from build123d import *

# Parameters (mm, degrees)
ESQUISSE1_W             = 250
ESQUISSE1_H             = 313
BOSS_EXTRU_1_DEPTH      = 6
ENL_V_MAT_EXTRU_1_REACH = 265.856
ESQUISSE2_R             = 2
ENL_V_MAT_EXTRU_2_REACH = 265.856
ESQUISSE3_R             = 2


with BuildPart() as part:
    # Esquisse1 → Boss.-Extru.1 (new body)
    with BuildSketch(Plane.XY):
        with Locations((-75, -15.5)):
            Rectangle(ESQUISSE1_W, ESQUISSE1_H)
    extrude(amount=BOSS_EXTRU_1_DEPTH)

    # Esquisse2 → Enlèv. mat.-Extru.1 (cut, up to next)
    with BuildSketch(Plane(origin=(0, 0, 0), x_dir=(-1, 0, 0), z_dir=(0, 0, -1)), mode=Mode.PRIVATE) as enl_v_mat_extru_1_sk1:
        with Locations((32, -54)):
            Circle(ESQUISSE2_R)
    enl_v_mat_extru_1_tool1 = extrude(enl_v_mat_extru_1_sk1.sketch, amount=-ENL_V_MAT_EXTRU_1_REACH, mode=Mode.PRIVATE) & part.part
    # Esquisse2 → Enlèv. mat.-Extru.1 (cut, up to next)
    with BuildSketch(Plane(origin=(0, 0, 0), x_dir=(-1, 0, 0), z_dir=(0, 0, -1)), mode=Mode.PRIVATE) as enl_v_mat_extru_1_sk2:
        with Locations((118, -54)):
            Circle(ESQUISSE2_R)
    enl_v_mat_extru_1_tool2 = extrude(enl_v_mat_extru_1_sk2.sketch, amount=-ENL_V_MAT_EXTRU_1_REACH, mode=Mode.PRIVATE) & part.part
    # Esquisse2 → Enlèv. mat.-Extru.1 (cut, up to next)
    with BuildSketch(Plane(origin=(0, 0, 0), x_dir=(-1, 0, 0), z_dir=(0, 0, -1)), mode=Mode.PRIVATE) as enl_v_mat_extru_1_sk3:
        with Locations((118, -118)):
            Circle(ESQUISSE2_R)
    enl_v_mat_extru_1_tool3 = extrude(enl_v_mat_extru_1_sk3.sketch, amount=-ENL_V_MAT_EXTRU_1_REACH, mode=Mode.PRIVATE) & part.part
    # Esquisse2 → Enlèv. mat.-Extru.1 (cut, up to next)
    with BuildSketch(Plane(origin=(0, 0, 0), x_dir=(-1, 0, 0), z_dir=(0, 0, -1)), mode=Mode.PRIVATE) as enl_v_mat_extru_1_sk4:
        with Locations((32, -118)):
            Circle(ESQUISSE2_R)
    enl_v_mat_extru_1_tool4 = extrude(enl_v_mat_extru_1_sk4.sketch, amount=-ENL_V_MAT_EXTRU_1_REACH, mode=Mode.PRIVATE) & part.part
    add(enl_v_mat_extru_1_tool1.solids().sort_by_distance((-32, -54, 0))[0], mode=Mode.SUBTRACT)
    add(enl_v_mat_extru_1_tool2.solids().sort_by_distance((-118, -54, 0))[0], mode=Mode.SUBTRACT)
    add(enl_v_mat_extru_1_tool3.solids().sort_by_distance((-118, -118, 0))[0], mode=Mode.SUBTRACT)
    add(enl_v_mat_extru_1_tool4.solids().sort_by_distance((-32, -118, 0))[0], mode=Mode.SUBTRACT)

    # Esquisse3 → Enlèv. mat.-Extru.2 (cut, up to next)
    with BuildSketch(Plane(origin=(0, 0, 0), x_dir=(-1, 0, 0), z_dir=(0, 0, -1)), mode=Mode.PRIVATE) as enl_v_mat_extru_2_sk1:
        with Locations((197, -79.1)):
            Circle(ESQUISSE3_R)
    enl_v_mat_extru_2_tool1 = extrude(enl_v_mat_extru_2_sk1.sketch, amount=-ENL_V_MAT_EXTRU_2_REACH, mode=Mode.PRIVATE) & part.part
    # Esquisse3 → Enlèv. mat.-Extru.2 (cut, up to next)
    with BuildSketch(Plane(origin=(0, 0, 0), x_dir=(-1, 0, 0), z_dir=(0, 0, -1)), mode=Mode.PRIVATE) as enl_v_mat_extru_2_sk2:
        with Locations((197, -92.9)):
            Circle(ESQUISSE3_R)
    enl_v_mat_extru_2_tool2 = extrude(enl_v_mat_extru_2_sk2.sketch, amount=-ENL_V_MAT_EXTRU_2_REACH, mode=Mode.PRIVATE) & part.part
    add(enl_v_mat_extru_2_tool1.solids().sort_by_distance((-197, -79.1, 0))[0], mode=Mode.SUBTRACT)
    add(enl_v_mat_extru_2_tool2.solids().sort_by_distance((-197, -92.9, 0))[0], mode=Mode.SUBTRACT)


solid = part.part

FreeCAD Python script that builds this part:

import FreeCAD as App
import Part
import Sketcher

V = App.Vector
Q = App.Units.Quantity

doc = App.newDocument("Part")
params = doc.addObject("Spreadsheet::Sheet", "Params")
for row, (alias, value) in enumerate([
    ("sketch1_width", "250 mm"),
    ("sketch1_height", "313 mm"),
    ("pad1_length", "6 mm"),
    ("sketch2_diameter", "4 mm"),
    ("sketch3_diameter", "4 mm"),
    ("sketch4_diameter", "4 mm"),
    ("sketch5_diameter", "4 mm"),
    ("sketch6_diameter", "4 mm"),
    ("sketch7_diameter", "4 mm"),
], start=1):
    params.set(f"A{row}", alias)
    params.set(f"B{row}", "=" + value)
    params.setAlias(f"B{row}", alias)

body = doc.addObject("PartDesign::Body", "Body")

# Sketch on XY plane
sketch1 = body.newObject("Sketcher::SketchObject", "Sketch")
sketch1.AttachmentSupport = (doc.getObject("XY_Plane"), [""])
sketch1.MapMode = "FlatFace"
sketch1.addGeometry([
    Part.LineSegment(V(-200, 141, 0), V(-200, -172, 0)),
    Part.LineSegment(V(-200, -172, 0), V(50, -172, 0)),
    Part.LineSegment(V(50, -172, 0), V(50, 141, 0)),
    Part.LineSegment(V(50, 141, 0), V(-200, 141, 0)),
], False)
sketch1.addConstraint([
    Sketcher.Constraint("Coincident", 0, 2, 1, 1),
    Sketcher.Constraint("Coincident", 1, 2, 2, 1),
    Sketcher.Constraint("Coincident", 2, 2, 3, 1),
    Sketcher.Constraint("Coincident", 3, 2, 0, 1),
    Sketcher.Constraint("Vertical", 0),
    Sketcher.Constraint("Horizontal", 1),
    Sketcher.Constraint("Vertical", 2),
    Sketcher.Constraint("Horizontal", 3),
    Sketcher.Constraint("DistanceX", 1, 1, 1, 2, Q("250 mm")),
    Sketcher.Constraint("DistanceY", 0, 2, 0, 1, Q("313 mm")),
    Sketcher.Constraint("DistanceX", 0, 2, -1, 1, Q("200 mm")),
    Sketcher.Constraint("DistanceY", 0, 2, -1, 1, Q("172 mm")),
])
sketch1.setExpression("Constraints[8]", "Params.sketch1_width")
sketch1.setExpression("Constraints[9]", "Params.sketch1_height")
pad1 = body.newObject("PartDesign::Pad", "Pad")
pad1.Profile = sketch1
pad1.setExpression("Length", "Params.pad1_length")

# Sketch on XY plane
sketch2 = body.newObject("Sketcher::SketchObject", "Sketch001")
sketch2.AttachmentSupport = (doc.getObject("XY_Plane"), [""])
sketch2.MapMode = "FlatFace"
sketch2.addGeometry(Part.Circle(V(-32, -54, 0), V(0, 0, 1), 2), False)
sketch2.addConstraint([
    Sketcher.Constraint("Diameter", 0, Q("4 mm")),
    Sketcher.Constraint("DistanceX", 0, 3, -1, 1, Q("32 mm")),
    Sketcher.Constraint("DistanceY", 0, 3, -1, 1, Q("54 mm")),
])
sketch2.setExpression("Constraints[0]", "Params.sketch2_diameter")
pocket1 = body.newObject("PartDesign::Pocket", "Pocket")
pocket1.Profile = sketch2
pocket1.Type = "UpToFirst"
pocket1.Reversed = True

# Sketch on XY plane
sketch3 = body.newObject("Sketcher::SketchObject", "Sketch002")
sketch3.AttachmentSupport = (doc.getObject("XY_Plane"), [""])
sketch3.MapMode = "FlatFace"
sketch3.addGeometry(Part.Circle(V(-118, -54, 0), V(0, 0, 1), 2), False)
sketch3.addConstraint([
    Sketcher.Constraint("Diameter", 0, Q("4 mm")),
    Sketcher.Constraint("DistanceX", 0, 3, -1, 1, Q("118 mm")),
    Sketcher.Constraint("DistanceY", 0, 3, -1, 1, Q("54 mm")),
])
sketch3.setExpression("Constraints[0]", "Params.sketch3_diameter")
pocket2 = body.newObject("PartDesign::Pocket", "Pocket001")
pocket2.Profile = sketch3
pocket2.Type = "UpToFirst"
pocket2.Reversed = True

# Sketch on XY plane
sketch4 = body.newObject("Sketcher::SketchObject", "Sketch003")
sketch4.AttachmentSupport = (doc.getObject("XY_Plane"), [""])
sketch4.MapMode = "FlatFace"
sketch4.addGeometry(Part.Circle(V(-118, -118, 0), V(0, 0, 1), 2), False)
sketch4.addConstraint([
    Sketcher.Constraint("Diameter", 0, Q("4 mm")),
    Sketcher.Constraint("DistanceX", 0, 3, -1, 1, Q("118 mm")),
    Sketcher.Constraint("DistanceY", 0, 3, -1, 1, Q("118 mm")),
])
sketch4.setExpression("Constraints[0]", "Params.sketch4_diameter")
pocket3 = body.newObject("PartDesign::Pocket", "Pocket002")
pocket3.Profile = sketch4
pocket3.Type = "UpToFirst"
pocket3.Reversed = True

# Sketch on XY plane
sketch5 = body.newObject("Sketcher::SketchObject", "Sketch004")
sketch5.AttachmentSupport = (doc.getObject("XY_Plane"), [""])
sketch5.MapMode = "FlatFace"
sketch5.addGeometry(Part.Circle(V(-32, -118, 0), V(0, 0, 1), 2), False)
sketch5.addConstraint([
    Sketcher.Constraint("Diameter", 0, Q("4 mm")),
    Sketcher.Constraint("DistanceX", 0, 3, -1, 1, Q("32 mm")),
    Sketcher.Constraint("DistanceY", 0, 3, -1, 1, Q("118 mm")),
])
sketch5.setExpression("Constraints[0]", "Params.sketch5_diameter")
pocket4 = body.newObject("PartDesign::Pocket", "Pocket003")
pocket4.Profile = sketch5
pocket4.Type = "UpToFirst"
pocket4.Reversed = True

# Sketch on XY plane
sketch6 = body.newObject("Sketcher::SketchObject", "Sketch005")
sketch6.AttachmentSupport = (doc.getObject("XY_Plane"), [""])
sketch6.MapMode = "FlatFace"
sketch6.addGeometry(Part.Circle(V(-197, -79.1, 0), V(0, 0, 1), 2), False)
sketch6.addConstraint([
    Sketcher.Constraint("Diameter", 0, Q("4 mm")),
    Sketcher.Constraint("DistanceX", 0, 3, -1, 1, Q("197 mm")),
    Sketcher.Constraint("DistanceY", 0, 3, -1, 1, Q("79.1 mm")),
])
sketch6.setExpression("Constraints[0]", "Params.sketch6_diameter")
pocket5 = body.newObject("PartDesign::Pocket", "Pocket004")
pocket5.Profile = sketch6
pocket5.Type = "UpToFirst"
pocket5.Reversed = True

# Sketch on XY plane
sketch7 = body.newObject("Sketcher::SketchObject", "Sketch006")
sketch7.AttachmentSupport = (doc.getObject("XY_Plane"), [""])
sketch7.MapMode = "FlatFace"
sketch7.addGeometry(Part.Circle(V(-197, -92.9, 0), V(0, 0, 1), 2), False)
sketch7.addConstraint([
    Sketcher.Constraint("Diameter", 0, Q("4 mm")),
    Sketcher.Constraint("DistanceX", 0, 3, -1, 1, Q("197 mm")),
    Sketcher.Constraint("DistanceY", 0, 3, -1, 1, Q("92.9 mm")),
])
sketch7.setExpression("Constraints[0]", "Params.sketch7_diameter")
pocket6 = body.newObject("PartDesign::Pocket", "Pocket005")
pocket6.Profile = sketch7
pocket6.Type = "UpToFirst"
pocket6.Reversed = True

doc.recompute()
